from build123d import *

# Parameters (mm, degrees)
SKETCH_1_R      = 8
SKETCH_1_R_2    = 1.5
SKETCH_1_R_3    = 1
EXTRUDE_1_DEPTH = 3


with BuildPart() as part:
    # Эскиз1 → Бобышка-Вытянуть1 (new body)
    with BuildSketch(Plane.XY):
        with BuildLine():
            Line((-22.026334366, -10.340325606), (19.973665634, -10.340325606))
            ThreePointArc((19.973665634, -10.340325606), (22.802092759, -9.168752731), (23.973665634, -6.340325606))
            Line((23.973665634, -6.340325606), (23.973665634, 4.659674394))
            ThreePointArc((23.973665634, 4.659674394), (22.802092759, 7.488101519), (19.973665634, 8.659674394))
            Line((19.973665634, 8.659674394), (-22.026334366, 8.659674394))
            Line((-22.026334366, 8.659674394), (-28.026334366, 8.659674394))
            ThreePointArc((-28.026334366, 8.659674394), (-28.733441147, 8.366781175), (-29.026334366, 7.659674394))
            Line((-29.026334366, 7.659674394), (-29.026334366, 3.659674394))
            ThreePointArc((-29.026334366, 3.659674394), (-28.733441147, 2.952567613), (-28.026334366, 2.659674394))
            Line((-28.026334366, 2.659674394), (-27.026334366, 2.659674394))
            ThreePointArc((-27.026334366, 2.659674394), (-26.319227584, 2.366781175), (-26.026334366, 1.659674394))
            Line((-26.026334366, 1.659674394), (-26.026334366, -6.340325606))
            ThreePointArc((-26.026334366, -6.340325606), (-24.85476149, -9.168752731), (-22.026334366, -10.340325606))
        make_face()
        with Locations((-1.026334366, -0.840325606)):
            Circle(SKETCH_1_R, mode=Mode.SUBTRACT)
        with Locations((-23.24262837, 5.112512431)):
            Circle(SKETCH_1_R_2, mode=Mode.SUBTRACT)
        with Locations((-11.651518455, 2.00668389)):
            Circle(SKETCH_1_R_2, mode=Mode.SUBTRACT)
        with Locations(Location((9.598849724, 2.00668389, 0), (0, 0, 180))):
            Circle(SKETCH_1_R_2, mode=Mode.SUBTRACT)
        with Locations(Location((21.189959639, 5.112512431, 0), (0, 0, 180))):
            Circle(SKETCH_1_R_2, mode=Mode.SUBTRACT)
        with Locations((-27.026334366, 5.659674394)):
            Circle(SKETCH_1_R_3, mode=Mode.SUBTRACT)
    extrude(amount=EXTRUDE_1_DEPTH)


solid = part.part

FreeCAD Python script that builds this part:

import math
import FreeCAD as App
import Part
import Sketcher
from FreeCAD import Vector
Q = App.Units.Quantity

doc = App.newDocument("Part")
body = doc.addObject("PartDesign::Body", "Body")

# Sketch on XY plane
sketch1 = body.newObject("Sketcher::SketchObject", "Sketch")
sketch1.AttachmentSupport = (doc.getObject("XY_Plane"), [""])
sketch1.MapMode = "FlatFace"
sketch1.addGeometry([
    Part.LineSegment(Vector(-22, -10.3, 0), Vector(20, -10.3, 0)),  # 0
    Part.ArcOfCircle(Part.Circle(Vector(20, -6.3, 0), Vector(0, 0, 1), 4), math.radians(-90), math.radians(0)),  # 1
    Part.LineSegment(Vector(24, -6.3, 0), Vector(24, 4.7, 0)),  # 2
    Part.ArcOfCircle(Part.Circle(Vector(20, 4.7, 0), Vector(0, 0, 1), 4), math.radians(0), math.radians(90)),  # 3
    Part.LineSegment(Vector(20, 8.7, 0), Vector(-28, 8.7, 0)),  # 4
    Part.ArcOfCircle(Part.Circle(Vector(-28, 7.7, 0), Vector(0, 0, 1), 1), math.radians(90), math.radians(180)),  # 5
    Part.LineSegment(Vector(-29, 7.7, 0), Vector(-29, 3.7, 0)),  # 6
    Part.ArcOfCircle(Part.Circle(Vector(-28, 3.7, 0), Vector(0, 0, 1), 1), math.radians(-180), math.radians(-90)),  # 7
    Part.LineSegment(Vector(-28, 2.7, 0), Vector(-27, 2.7, 0)),  # 8
    Part.ArcOfCircle(Part.Circle(Vector(-27, 1.7, 0), Vector(0, 0, 1), 1), math.radians(0), math.radians(90)),  # 9
    Part.LineSegment(Vector(-26, 1.7, 0), Vector(-26, -6.3, 0)),  # 10
    Part.ArcOfCircle(Part.Circle(Vector(-22, -6.3, 0), Vector(0, 0, 1), 4), math.radians(-180), math.radians(-90)),  # 11
    Part.Circle(Vector(-11.7, 2, 0), Vector(0, 0, 1), 1.5),  # 12
    Part.Circle(Vector(-23.2, 5.1, 0), Vector(0, 0, 1), 1.5),  # 13
    Part.Circle(Vector(-27, 5.7, 0), Vector(0, 0, 1), 1),  # 14
    Part.Circle(Vector(-1, -0.8, 0), Vector(0, 0, 1), 8),  # 15
    Part.Circle(Vector(9.6, 2, 0), Vector(0, 0, 1), 1.5),  # 16
    Part.Circle(Vector(21.2, 5.1, 0), Vector(0, 0, 1), 1.5),  # 17
], False)
sketch1.addConstraint([
    Sketcher.Constraint("Tangent", 0, 2, 1, 1),
    Sketcher.Constraint("Tangent", 1, 2, 2, 1),
    Sketcher.Constraint("Tangent", 2, 2, 3, 1),
    Sketcher.Constraint("Tangent", 3, 2, 4, 1),
    Sketcher.Constraint("Tangent", 4, 2, 5, 1),
    Sketcher.Constraint("Tangent", 5, 2, 6, 1),
    Sketcher.Constraint("Tangent", 6, 2, 7, 1),
    Sketcher.Constraint("Tangent", 7, 2, 8, 1),
    Sketcher.Constraint("Tangent", 8, 2, 9, 2),
    Sketcher.Constraint("Tangent", 9, 1, 10, 1),
    Sketcher.Constraint("Tangent", 10, 2, 11, 1),
    Sketcher.Constraint("Tangent", 11, 2, 0, 1),
    Sketcher.Constraint("Horizontal", 0),
    Sketcher.Constraint("Vertical", 2),
    Sketcher.Constraint("Horizontal", 4),
    Sketcher.Constraint("Vertical", 6),
    Sketcher.Constraint("Horizontal", 8),
    Sketcher.Constraint("Vertical", 10),
    Sketcher.Constraint("Equal", 1, 3),
    Sketcher.Constraint("Equal", 5, 7),
    Sketcher.Constraint("Equal", 7, 9),
    Sketcher.Constraint("Equal", 3, 11),
    Sketcher.Constraint("Equal", 12, 13),
    Sketcher.Constraint("Equal", 9, 14),
    Sketcher.Constraint("Equal", 13, 16),
    Sketcher.Constraint("Equal", 16, 17),
    Sketcher.Constraint("Horizontal", 12, 3, 16, 3),
    Sketcher.Constraint("Horizontal", 13, 3, 17, 3),
    Sketcher.Constraint("Vertical", 9, 3, 14, 3),
    Sketcher.Constraint("Diameter", 12, Q("3 mm")),
    Sketcher.Constraint("Diameter", 14, Q("2 mm")),
    Sketcher.Constraint("Diameter", 15, Q("16 mm")),
    Sketcher.Constraint("Radius", 1, Q("4 mm")),
    Sketcher.Constraint("DistanceX", 0, 1, 0, 2, Q("42 mm")),
    Sketcher.Constraint("DistanceX", 4, 2, 4, 1, Q("48 mm")),
    Sketcher.Constraint("DistanceY", 2, 1, 2, 2, Q("11 mm")),
    Sketcher.Constraint("DistanceY", 6, 2, 6, 1, Q("4 mm")),
    Sketcher.Constraint("DistanceY", 7, 3, 14, 3, Q("2 mm")),
    Sketcher.Constraint("DistanceX", 11, 3, 15, 3, Q("21 mm")),
    Sketcher.Constraint("DistanceY", 11, 3, 15, 3, Q("5.5 mm")),
    Sketcher.Constraint("DistanceX", 12, 3, -1, 1, Q("11.651518 mm")),
    Sketcher.Constraint("DistanceX", 13, 3, -1, 1, Q("23.242628 mm")),
    Sketcher.Constraint("DistanceX", -1, 1, 16, 3, Q("9.59885 mm")),
    Sketcher.Constraint("DistanceX", -1, 1, 17, 3, Q("21.18996 mm")),
    Sketcher.Constraint("DistanceY", 11, 3, 12, 3, Q("8.347009 mm")),
    Sketcher.Constraint("DistanceY", 7, 3, 13, 3, Q("1.452838 mm")),
    Sketcher.Constraint("DistanceX", -1, 1, 1, 3, Q("19.973666 mm")),
    Sketcher.Constraint("DistanceY", 1, 3, -1, 1, Q("6.340326 mm")),
])
pad1 = body.newObject("PartDesign::Pad", "Pad")
pad1.Profile = sketch1
pad1.Length = 3

doc.recompute()
